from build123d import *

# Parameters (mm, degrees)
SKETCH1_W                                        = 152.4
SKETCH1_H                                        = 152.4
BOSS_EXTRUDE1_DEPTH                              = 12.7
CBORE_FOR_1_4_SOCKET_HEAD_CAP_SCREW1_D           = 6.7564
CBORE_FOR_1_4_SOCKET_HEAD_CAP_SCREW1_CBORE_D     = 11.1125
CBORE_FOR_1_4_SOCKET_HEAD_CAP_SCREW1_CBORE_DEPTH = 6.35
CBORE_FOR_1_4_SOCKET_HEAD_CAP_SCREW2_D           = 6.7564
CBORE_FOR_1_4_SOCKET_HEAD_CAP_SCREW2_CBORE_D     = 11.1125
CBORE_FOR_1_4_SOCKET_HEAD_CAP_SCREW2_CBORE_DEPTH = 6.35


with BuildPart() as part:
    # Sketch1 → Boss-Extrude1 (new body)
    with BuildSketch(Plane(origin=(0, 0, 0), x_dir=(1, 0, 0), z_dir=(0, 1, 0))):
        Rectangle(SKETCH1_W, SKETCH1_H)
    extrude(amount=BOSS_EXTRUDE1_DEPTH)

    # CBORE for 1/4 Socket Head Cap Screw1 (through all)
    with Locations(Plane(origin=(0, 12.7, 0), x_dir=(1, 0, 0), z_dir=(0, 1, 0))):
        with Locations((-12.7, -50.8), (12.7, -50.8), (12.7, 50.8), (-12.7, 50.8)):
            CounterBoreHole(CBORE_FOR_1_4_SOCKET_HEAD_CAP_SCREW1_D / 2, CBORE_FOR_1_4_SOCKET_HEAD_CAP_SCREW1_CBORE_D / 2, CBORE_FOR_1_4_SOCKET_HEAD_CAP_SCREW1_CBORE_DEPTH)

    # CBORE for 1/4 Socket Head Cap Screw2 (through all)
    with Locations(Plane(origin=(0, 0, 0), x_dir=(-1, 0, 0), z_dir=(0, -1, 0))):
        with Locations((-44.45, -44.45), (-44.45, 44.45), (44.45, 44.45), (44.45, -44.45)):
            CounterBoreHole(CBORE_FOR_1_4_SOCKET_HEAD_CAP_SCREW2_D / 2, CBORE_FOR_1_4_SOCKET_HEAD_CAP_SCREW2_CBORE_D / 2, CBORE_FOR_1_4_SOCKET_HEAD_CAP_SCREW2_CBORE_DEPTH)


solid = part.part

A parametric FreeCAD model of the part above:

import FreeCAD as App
import Part
import Sketcher
Q = App.Units.Quantity


def add_polygon(sketch, points):
    """Adds a closed chain of lines whose ends are joined by coincident constraints."""
    first, n = sketch.GeometryCount, len(points)
    for a, b in zip(points, points[1:] + points[:1]):
        sketch.addGeometry(Part.LineSegment(App.Vector(*a, 0), App.Vector(*b, 0)), False)
    for i in range(n):
        sketch.addConstraint(Sketcher.Constraint("Coincident", first + i, 2, first + (i + 1) % n, 1))

doc = App.newDocument("Part")
body = doc.addObject("PartDesign::Body", "Body")

# Sketch on XZ plane
sketch1 = doc.addObject("Sketcher::SketchObject", "Sketch")
body.addObject(sketch1)
sketch1.AttachmentSupport = (doc.XZ_Plane, [""])
sketch1.MapMode = "FlatFace"
add_polygon(sketch1, [(-76.2, -76.2), (-76.2, 76.2), (76.2, 76.2), (76.2, -76.2)])  # lines 0-3
sketch1.addConstraint([
    Sketcher.Constraint("Vertical", 0),
    Sketcher.Constraint("Horizontal", 1),
    Sketcher.Constraint("Vertical", 2),
    Sketcher.Constraint("Horizontal", 3),
    Sketcher.Constraint("Symmetric", 0, 2, 2, 2, -1, 1),
    Sketcher.Constraint("Equal", 3, 0),
    Sketcher.Constraint("DistanceX", 1, 1, 1, 2, Q("6 in")),
])
pad1 = doc.addObject("PartDesign::Pad", "Pad")
body.addObject(pad1)
pad1.Profile = sketch1
pad1.Length = Q("0.5 in")
pad1.Reversed = True

# Sketch on XZ plane
sketch2 = doc.addObject("Sketcher::SketchObject", "Sketch001")
body.addObject(sketch2)
sketch2.AttachmentSupport = (doc.XZ_Plane, [""])
sketch2.MapMode = "FlatFace"
sketch2.AttachmentOffset = App.Placement(App.Vector(0, 0, -0.5 * 25.4), App.Rotation())
sketch2.addGeometry([
    Part.Circle(App.Vector(-12.7, 50.8, 0), App.Vector(0, 0, 1), 3.3782),
    Part.Circle(App.Vector(12.7, 50.8, 0), App.Vector(0, 0, 1), 3.3782),
    Part.Circle(App.Vector(12.7, -50.8, 0), App.Vector(0, 0, 1), 3.3782),
    Part.Circle(App.Vector(-12.7, -50.8, 0), App.Vector(0, 0, 1), 3.3782),
], False)
sketch2.addConstraint([
    Sketcher.Constraint("Equal", 0, 1),
    Sketcher.Constraint("Equal", 1, 2),
    Sketcher.Constraint("Equal", 2, 3),
    Sketcher.Constraint("Symmetric", 0, 3, 2, 3, -1, 1),
    Sketcher.Constraint("Symmetric", 1, 3, 3, 3, -1, 1),
    Sketcher.Constraint("Symmetric", 0, 3, 1, 3, -2),
    Sketcher.Constraint("Diameter", 0, Q("0.266 in")),
    Sketcher.Constraint("DistanceY", -1, 1, 0, 3, Q("2 in")),
    Sketcher.Constraint("DistanceX", 0, 3, 1, 3, Q("1 in")),
])
doc.recompute()
hole = doc.addObject("PartDesign::Hole", "Hole")
body.addObject(hole)
hole.Profile = sketch2
hole.ThreadType = "None"
hole.Diameter = Q("0.266 in")
hole.DepthType = "ThroughAll"
hole.HoleCutType = "Counterbore"
hole.HoleCutDiameter = Q("0.4375 in")
hole.HoleCutDepth = Q("0.25 in")
hole.Reversed = True

# Sketch on XZ plane
sketch3 = doc.addObject("Sketcher::SketchObject", "Sketch002")
body.addObject(sketch3)
sketch3.AttachmentSupport = (doc.XZ_Plane, [""])
sketch3.MapMode = "FlatFace"
sketch3.addGeometry([
    Part.Circle(App.Vector(44.45, 44.45, 0), App.Vector(0, 0, 1), 3.3782),
    Part.Circle(App.Vector(44.45, -44.45, 0), App.Vector(0, 0, 1), 3.3782),
    Part.Circle(App.Vector(-44.45, -44.45, 0), App.Vector(0, 0, 1), 3.3782),
    Part.Circle(App.Vector(-44.45, 44.45, 0), App.Vector(0, 0, 1), 3.3782),
], False)
sketch3.addConstraint([
    Sketcher.Constraint("Equal", 0, 1),
    Sketcher.Constraint("Equal", 1, 2),
    Sketcher.Constraint("Equal", 2, 3),
    Sketcher.Constraint("Symmetric", 0, 3, 2, 3, -1, 1),
    Sketcher.Constraint("Symmetric", 1, 3, 3, 3, -1, 1),
    Sketcher.Constraint("Symmetric", 1, 3, 2, 3, -2),
    Sketcher.Constraint("Diameter", 0, Q("0.266 in")),
    Sketcher.Constraint("DistanceY", 1, 3, 0, 3, Q("3.5 in")),
    Sketcher.Constraint("DistanceX", 2, 3, 1, 3, Q("3.5 in")),
])
doc.recompute()
hole2 = doc.addObject("PartDesign::Hole", "Hole001")
body.addObject(hole2)
hole2.Profile = sketch3
hole2.ThreadType = "None"
hole2.Diameter = Q("0.266 in")
hole2.DepthType = "ThroughAll"
hole2.HoleCutType = "Counterbore"
hole2.HoleCutDiameter = Q("0.4375 in")
hole2.HoleCutDepth = Q("0.25 in")

doc.recompute()
